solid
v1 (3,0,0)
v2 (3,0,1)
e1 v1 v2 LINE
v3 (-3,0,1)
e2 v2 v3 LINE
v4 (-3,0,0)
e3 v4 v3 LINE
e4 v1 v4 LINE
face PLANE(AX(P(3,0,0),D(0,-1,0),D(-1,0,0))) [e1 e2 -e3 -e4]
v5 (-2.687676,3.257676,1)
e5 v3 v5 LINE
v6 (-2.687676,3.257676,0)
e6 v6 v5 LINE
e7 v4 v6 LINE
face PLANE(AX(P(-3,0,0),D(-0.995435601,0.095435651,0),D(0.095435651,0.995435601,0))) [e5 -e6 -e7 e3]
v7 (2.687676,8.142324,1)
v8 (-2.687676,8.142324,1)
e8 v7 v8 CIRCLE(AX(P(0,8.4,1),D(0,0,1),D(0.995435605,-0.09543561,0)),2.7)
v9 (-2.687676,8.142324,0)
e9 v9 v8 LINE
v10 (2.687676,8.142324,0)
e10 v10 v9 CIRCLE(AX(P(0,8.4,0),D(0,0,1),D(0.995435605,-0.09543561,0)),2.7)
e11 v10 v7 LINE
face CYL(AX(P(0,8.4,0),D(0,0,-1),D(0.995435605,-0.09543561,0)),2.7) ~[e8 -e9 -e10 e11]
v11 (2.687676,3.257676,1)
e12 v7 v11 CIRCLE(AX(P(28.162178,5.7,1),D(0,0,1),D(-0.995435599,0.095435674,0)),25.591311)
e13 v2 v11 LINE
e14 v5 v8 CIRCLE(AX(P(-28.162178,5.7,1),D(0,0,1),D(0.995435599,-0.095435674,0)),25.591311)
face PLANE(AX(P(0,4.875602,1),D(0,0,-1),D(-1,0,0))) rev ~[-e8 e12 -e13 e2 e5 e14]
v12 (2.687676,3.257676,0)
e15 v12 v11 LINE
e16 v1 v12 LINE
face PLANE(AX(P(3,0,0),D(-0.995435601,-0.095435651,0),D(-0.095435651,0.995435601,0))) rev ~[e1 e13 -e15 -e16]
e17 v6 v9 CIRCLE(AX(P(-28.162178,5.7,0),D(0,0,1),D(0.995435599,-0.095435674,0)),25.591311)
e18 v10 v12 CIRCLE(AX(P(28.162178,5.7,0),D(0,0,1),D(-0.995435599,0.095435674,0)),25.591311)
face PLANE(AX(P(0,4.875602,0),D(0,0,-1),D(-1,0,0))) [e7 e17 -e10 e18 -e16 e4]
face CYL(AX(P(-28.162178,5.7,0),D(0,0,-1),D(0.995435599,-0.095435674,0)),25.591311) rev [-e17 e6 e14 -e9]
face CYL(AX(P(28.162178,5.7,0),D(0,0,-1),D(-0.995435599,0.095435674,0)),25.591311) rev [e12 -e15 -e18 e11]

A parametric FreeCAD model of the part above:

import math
import FreeCAD as App
import Part
import Sketcher
from FreeCAD import Vector
Q = App.Units.Quantity

doc = App.newDocument("Part")
body = doc.addObject("PartDesign::Body", "Body")

# Sketch on XY plane
sketch1 = doc.addObject("Sketcher::SketchObject", "Sketch")
body.addObject(sketch1)
sketch1.AttachmentSupport = (doc.XY_Plane, [""])
sketch1.MapMode = "FlatFace"
sketch1.addGeometry(Part.LineSegment(Vector(-3, 0, 0), Vector(3, 0, 0)), False)
sketch1.addGeometry(Part.LineSegment(Vector(3, 0, 0), Vector(2.687676, 3.257676, 0)), False)
sketch1.addGeometry(Part.ArcOfCircle(Part.Circle(Vector(28.162178, 5.7, 0), Vector(0, 0, 1), 25.591311), math.radians(174.523604), math.radians(185.476396)), False)
sketch1.addGeometry(Part.ArcOfCircle(Part.Circle(Vector(0, 8.4, 0), Vector(0, 0, 1), 2.7), math.radians(-5.476392), math.radians(185.476392)), False)
sketch1.addGeometry(Part.ArcOfCircle(Part.Circle(Vector(-28.162178, 5.7, 0), Vector(0, 0, 1), 25.591311), math.radians(-5.476396), math.radians(5.476396)), False)
sketch1.addGeometry(Part.LineSegment(Vector(-2.687676, 3.257676, 0), Vector(-3, 0, 0)), False)
sketch1.addConstraint(Sketcher.Constraint("Coincident", 0, 2, 1, 1))
sketch1.addConstraint(Sketcher.Constraint("Tangent", 1, 2, 2, 2))
sketch1.addConstraint(Sketcher.Constraint("Tangent", 2, 1, 3, 1))
sketch1.addConstraint(Sketcher.Constraint("Tangent", 3, 2, 4, 2))
sketch1.addConstraint(Sketcher.Constraint("Tangent", 4, 1, 5, 1))
sketch1.addConstraint(Sketcher.Constraint("Coincident", 5, 2, 0, 1))
sketch1.addConstraint(Sketcher.Constraint("Horizontal", 0))
sketch1.addConstraint(Sketcher.Constraint("Equal", 2, 4))
sketch1.addConstraint(Sketcher.Constraint("Symmetric", 0, 2, 5, 2, -1, 1))
sketch1.addConstraint(Sketcher.Constraint("Symmetric", 2, 3, 4, 3, -2))
sketch1.addConstraint(Sketcher.Constraint("Vertical", 1, 2, 2, 1))
sketch1.addConstraint(Sketcher.Constraint("Radius", 3, Q("2.7 mm")))
sketch1.addConstraint(Sketcher.Constraint("DistanceX", 0, 1, 0, 2, Q("6 mm")))
sketch1.addConstraint(Sketcher.Constraint("DistanceY", -1, 1, 2, 3, Q("5.7 mm")))
sketch1.addConstraint(Sketcher.Constraint("DistanceY", -1, 1, 3, 3, Q("8.4 mm")))
pad1 = doc.addObject("PartDesign::Pad", "Pad")
body.addObject(pad1)
pad1.Profile = sketch1
pad1.Length = 1

doc.recompute()
